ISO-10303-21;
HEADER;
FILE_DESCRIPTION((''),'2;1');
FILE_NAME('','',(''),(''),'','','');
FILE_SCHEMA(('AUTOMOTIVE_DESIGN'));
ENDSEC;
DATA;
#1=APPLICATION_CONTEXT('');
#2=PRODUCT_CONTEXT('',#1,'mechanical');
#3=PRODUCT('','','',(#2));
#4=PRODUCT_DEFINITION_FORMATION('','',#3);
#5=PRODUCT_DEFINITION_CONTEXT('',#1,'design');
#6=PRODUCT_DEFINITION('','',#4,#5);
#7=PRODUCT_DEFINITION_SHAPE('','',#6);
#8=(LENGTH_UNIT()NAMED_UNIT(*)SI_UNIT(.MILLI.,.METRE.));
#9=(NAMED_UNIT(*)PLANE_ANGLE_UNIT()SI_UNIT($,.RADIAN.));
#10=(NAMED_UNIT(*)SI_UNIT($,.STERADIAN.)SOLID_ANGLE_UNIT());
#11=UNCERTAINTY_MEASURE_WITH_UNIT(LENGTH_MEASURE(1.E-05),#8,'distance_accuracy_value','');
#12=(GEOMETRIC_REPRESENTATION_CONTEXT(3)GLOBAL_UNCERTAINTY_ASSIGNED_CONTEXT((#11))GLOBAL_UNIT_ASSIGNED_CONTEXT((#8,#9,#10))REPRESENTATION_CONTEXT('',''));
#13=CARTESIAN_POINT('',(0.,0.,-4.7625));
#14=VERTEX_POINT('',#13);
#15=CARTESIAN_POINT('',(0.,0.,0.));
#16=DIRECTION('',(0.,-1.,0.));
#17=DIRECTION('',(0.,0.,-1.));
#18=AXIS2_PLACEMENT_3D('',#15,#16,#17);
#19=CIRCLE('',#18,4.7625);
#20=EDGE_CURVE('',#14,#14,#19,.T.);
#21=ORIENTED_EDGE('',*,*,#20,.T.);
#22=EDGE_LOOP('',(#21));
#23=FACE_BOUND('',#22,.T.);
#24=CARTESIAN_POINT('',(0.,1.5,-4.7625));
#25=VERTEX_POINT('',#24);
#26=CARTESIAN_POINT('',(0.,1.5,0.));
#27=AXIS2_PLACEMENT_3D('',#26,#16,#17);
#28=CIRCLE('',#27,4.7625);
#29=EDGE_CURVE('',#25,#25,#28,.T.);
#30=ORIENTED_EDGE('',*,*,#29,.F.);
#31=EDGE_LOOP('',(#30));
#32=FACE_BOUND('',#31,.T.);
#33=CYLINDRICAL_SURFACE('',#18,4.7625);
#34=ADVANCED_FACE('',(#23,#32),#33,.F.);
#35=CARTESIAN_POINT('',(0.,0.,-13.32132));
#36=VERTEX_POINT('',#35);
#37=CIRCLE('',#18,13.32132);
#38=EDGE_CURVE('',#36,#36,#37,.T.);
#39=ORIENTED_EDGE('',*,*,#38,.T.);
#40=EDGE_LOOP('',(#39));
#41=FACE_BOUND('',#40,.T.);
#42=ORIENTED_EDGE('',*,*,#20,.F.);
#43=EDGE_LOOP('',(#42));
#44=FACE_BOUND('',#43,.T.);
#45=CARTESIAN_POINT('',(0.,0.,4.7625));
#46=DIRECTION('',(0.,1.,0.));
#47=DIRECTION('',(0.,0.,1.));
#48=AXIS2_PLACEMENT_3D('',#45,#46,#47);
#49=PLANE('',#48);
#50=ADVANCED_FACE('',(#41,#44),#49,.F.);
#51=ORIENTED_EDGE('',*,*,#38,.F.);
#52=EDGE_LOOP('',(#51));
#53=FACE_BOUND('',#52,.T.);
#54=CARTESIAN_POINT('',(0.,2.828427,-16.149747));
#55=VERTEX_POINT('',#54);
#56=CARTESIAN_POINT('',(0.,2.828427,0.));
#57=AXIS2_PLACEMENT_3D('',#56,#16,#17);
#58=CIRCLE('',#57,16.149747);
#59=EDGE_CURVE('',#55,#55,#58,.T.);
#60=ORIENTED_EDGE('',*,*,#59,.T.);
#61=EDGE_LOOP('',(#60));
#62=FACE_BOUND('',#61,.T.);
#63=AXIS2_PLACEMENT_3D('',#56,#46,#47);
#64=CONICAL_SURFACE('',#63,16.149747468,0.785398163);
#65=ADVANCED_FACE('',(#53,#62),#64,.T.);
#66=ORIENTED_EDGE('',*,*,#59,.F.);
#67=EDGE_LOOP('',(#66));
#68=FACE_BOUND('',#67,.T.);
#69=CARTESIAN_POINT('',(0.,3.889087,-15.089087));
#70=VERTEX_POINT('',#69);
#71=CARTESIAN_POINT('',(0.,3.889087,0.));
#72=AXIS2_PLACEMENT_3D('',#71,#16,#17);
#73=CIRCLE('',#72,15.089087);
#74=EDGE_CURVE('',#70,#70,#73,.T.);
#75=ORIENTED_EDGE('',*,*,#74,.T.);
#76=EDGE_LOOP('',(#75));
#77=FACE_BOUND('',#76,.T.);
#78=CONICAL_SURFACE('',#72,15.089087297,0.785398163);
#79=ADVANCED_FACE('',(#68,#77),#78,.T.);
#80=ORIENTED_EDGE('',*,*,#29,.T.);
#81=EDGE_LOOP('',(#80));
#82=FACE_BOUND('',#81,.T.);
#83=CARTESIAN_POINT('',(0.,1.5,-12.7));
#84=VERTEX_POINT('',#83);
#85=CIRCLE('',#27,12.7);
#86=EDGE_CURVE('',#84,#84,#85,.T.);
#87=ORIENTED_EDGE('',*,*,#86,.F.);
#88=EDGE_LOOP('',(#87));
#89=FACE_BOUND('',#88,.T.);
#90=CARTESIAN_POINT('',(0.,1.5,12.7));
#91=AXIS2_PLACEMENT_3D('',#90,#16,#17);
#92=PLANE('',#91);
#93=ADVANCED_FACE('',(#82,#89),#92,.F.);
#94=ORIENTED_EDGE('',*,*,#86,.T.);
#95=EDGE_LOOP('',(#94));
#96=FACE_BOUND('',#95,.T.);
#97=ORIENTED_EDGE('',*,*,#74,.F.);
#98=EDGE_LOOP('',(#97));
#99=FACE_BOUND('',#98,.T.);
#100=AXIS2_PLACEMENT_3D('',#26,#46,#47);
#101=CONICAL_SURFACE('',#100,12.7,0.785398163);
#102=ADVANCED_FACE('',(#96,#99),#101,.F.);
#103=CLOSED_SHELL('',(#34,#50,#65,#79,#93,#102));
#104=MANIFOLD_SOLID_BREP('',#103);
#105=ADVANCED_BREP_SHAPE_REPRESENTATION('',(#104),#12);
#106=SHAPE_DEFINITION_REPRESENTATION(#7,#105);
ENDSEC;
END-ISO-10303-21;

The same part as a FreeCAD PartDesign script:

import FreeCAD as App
import Part
import Sketcher
from FreeCAD import Vector
Q = App.Units.Quantity

doc = App.newDocument("Part")
params = doc.addObject("Spreadsheet::Sheet", "Params")
for row, (alias, value) in enumerate([
    ("sketch1_length", "4 mm"),
    ("sketch1_width", "1.5 mm"),
    ("sketch1_length2", "1.5 mm"),
    ("revolution_angle", "360 deg"),
], start=1):
    params.set(f"A{row}", alias)
    params.set(f"B{row}", "=" + value)
    params.setAlias(f"B{row}", alias)

body = doc.addObject("PartDesign::Body", "Body")

sketch1 = body.newObject("Sketcher::SketchObject", "Sketch")
sketch1.AttachmentSupport = (doc.getObject("YZ_Plane"), [""])
sketch1.MapMode = "FlatFace"
sketch1.addGeometry([
    Part.LineSegment(Vector(0, 13.3, 0), Vector(0, 4.8, 0)),
    Part.LineSegment(Vector(0, 4.8, 0), Vector(1.5, 4.8, 0)),
    Part.LineSegment(Vector(1.5, 4.8, 0), Vector(1.5, 12.7, 0)),
    Part.LineSegment(Vector(1.5, 12.7, 0), Vector(3.9, 15.1, 0)),
    Part.LineSegment(Vector(3.9, 15.1, 0), Vector(2.8, 16.1, 0)),
    Part.LineSegment(Vector(2.8, 16.1, 0), Vector(0, 13.3, 0)),
], False)
sketch1.addConstraint([
    Sketcher.Constraint("Coincident", 0, 2, 1, 1),
    Sketcher.Constraint("Coincident", 1, 2, 2, 1),
    Sketcher.Constraint("Coincident", 2, 2, 3, 1),
    Sketcher.Constraint("Coincident", 3, 2, 4, 1),
    Sketcher.Constraint("Coincident", 4, 2, 5, 1),
    Sketcher.Constraint("Coincident", 5, 2, 0, 1),
    Sketcher.Constraint("Vertical", 0),
    Sketcher.Constraint("Horizontal", 1),
    Sketcher.Constraint("Vertical", 2),
    Sketcher.Constraint("PointOnObject", 0, 2, -2),
    Sketcher.Constraint("Perpendicular", 3, 4),
    Sketcher.Constraint("Perpendicular", 4, 5),
    Sketcher.Constraint("Angle", 3, Q("45 deg")),
    Sketcher.Constraint("Distance", 5, Q("4 mm")),
    Sketcher.Constraint("DistanceX", 1, 1, 1, 2, Q("1.5 mm")),
    Sketcher.Constraint("Distance", 4, Q("1.5 mm")),
    Sketcher.Constraint("DistanceY", -1, 1, 2, 2, Q("12.7 mm")),
    Sketcher.Constraint("DistanceY", 2, 1, 2, 2, Q("7.9375 mm")),
])
sketch1.setExpression("Constraints[13]", "Params.sketch1_length")
sketch1.setExpression("Constraints[14]", "Params.sketch1_width")
sketch1.setExpression("Constraints[15]", "Params.sketch1_length2")
revolution = body.newObject("PartDesign::Revolution", "Revolution")
revolution.Profile = sketch1
revolution.ReferenceAxis = (sketch1, ["H_Axis"])
revolution.setExpression("Angle", "Params.revolution_angle")

doc.recompute()
